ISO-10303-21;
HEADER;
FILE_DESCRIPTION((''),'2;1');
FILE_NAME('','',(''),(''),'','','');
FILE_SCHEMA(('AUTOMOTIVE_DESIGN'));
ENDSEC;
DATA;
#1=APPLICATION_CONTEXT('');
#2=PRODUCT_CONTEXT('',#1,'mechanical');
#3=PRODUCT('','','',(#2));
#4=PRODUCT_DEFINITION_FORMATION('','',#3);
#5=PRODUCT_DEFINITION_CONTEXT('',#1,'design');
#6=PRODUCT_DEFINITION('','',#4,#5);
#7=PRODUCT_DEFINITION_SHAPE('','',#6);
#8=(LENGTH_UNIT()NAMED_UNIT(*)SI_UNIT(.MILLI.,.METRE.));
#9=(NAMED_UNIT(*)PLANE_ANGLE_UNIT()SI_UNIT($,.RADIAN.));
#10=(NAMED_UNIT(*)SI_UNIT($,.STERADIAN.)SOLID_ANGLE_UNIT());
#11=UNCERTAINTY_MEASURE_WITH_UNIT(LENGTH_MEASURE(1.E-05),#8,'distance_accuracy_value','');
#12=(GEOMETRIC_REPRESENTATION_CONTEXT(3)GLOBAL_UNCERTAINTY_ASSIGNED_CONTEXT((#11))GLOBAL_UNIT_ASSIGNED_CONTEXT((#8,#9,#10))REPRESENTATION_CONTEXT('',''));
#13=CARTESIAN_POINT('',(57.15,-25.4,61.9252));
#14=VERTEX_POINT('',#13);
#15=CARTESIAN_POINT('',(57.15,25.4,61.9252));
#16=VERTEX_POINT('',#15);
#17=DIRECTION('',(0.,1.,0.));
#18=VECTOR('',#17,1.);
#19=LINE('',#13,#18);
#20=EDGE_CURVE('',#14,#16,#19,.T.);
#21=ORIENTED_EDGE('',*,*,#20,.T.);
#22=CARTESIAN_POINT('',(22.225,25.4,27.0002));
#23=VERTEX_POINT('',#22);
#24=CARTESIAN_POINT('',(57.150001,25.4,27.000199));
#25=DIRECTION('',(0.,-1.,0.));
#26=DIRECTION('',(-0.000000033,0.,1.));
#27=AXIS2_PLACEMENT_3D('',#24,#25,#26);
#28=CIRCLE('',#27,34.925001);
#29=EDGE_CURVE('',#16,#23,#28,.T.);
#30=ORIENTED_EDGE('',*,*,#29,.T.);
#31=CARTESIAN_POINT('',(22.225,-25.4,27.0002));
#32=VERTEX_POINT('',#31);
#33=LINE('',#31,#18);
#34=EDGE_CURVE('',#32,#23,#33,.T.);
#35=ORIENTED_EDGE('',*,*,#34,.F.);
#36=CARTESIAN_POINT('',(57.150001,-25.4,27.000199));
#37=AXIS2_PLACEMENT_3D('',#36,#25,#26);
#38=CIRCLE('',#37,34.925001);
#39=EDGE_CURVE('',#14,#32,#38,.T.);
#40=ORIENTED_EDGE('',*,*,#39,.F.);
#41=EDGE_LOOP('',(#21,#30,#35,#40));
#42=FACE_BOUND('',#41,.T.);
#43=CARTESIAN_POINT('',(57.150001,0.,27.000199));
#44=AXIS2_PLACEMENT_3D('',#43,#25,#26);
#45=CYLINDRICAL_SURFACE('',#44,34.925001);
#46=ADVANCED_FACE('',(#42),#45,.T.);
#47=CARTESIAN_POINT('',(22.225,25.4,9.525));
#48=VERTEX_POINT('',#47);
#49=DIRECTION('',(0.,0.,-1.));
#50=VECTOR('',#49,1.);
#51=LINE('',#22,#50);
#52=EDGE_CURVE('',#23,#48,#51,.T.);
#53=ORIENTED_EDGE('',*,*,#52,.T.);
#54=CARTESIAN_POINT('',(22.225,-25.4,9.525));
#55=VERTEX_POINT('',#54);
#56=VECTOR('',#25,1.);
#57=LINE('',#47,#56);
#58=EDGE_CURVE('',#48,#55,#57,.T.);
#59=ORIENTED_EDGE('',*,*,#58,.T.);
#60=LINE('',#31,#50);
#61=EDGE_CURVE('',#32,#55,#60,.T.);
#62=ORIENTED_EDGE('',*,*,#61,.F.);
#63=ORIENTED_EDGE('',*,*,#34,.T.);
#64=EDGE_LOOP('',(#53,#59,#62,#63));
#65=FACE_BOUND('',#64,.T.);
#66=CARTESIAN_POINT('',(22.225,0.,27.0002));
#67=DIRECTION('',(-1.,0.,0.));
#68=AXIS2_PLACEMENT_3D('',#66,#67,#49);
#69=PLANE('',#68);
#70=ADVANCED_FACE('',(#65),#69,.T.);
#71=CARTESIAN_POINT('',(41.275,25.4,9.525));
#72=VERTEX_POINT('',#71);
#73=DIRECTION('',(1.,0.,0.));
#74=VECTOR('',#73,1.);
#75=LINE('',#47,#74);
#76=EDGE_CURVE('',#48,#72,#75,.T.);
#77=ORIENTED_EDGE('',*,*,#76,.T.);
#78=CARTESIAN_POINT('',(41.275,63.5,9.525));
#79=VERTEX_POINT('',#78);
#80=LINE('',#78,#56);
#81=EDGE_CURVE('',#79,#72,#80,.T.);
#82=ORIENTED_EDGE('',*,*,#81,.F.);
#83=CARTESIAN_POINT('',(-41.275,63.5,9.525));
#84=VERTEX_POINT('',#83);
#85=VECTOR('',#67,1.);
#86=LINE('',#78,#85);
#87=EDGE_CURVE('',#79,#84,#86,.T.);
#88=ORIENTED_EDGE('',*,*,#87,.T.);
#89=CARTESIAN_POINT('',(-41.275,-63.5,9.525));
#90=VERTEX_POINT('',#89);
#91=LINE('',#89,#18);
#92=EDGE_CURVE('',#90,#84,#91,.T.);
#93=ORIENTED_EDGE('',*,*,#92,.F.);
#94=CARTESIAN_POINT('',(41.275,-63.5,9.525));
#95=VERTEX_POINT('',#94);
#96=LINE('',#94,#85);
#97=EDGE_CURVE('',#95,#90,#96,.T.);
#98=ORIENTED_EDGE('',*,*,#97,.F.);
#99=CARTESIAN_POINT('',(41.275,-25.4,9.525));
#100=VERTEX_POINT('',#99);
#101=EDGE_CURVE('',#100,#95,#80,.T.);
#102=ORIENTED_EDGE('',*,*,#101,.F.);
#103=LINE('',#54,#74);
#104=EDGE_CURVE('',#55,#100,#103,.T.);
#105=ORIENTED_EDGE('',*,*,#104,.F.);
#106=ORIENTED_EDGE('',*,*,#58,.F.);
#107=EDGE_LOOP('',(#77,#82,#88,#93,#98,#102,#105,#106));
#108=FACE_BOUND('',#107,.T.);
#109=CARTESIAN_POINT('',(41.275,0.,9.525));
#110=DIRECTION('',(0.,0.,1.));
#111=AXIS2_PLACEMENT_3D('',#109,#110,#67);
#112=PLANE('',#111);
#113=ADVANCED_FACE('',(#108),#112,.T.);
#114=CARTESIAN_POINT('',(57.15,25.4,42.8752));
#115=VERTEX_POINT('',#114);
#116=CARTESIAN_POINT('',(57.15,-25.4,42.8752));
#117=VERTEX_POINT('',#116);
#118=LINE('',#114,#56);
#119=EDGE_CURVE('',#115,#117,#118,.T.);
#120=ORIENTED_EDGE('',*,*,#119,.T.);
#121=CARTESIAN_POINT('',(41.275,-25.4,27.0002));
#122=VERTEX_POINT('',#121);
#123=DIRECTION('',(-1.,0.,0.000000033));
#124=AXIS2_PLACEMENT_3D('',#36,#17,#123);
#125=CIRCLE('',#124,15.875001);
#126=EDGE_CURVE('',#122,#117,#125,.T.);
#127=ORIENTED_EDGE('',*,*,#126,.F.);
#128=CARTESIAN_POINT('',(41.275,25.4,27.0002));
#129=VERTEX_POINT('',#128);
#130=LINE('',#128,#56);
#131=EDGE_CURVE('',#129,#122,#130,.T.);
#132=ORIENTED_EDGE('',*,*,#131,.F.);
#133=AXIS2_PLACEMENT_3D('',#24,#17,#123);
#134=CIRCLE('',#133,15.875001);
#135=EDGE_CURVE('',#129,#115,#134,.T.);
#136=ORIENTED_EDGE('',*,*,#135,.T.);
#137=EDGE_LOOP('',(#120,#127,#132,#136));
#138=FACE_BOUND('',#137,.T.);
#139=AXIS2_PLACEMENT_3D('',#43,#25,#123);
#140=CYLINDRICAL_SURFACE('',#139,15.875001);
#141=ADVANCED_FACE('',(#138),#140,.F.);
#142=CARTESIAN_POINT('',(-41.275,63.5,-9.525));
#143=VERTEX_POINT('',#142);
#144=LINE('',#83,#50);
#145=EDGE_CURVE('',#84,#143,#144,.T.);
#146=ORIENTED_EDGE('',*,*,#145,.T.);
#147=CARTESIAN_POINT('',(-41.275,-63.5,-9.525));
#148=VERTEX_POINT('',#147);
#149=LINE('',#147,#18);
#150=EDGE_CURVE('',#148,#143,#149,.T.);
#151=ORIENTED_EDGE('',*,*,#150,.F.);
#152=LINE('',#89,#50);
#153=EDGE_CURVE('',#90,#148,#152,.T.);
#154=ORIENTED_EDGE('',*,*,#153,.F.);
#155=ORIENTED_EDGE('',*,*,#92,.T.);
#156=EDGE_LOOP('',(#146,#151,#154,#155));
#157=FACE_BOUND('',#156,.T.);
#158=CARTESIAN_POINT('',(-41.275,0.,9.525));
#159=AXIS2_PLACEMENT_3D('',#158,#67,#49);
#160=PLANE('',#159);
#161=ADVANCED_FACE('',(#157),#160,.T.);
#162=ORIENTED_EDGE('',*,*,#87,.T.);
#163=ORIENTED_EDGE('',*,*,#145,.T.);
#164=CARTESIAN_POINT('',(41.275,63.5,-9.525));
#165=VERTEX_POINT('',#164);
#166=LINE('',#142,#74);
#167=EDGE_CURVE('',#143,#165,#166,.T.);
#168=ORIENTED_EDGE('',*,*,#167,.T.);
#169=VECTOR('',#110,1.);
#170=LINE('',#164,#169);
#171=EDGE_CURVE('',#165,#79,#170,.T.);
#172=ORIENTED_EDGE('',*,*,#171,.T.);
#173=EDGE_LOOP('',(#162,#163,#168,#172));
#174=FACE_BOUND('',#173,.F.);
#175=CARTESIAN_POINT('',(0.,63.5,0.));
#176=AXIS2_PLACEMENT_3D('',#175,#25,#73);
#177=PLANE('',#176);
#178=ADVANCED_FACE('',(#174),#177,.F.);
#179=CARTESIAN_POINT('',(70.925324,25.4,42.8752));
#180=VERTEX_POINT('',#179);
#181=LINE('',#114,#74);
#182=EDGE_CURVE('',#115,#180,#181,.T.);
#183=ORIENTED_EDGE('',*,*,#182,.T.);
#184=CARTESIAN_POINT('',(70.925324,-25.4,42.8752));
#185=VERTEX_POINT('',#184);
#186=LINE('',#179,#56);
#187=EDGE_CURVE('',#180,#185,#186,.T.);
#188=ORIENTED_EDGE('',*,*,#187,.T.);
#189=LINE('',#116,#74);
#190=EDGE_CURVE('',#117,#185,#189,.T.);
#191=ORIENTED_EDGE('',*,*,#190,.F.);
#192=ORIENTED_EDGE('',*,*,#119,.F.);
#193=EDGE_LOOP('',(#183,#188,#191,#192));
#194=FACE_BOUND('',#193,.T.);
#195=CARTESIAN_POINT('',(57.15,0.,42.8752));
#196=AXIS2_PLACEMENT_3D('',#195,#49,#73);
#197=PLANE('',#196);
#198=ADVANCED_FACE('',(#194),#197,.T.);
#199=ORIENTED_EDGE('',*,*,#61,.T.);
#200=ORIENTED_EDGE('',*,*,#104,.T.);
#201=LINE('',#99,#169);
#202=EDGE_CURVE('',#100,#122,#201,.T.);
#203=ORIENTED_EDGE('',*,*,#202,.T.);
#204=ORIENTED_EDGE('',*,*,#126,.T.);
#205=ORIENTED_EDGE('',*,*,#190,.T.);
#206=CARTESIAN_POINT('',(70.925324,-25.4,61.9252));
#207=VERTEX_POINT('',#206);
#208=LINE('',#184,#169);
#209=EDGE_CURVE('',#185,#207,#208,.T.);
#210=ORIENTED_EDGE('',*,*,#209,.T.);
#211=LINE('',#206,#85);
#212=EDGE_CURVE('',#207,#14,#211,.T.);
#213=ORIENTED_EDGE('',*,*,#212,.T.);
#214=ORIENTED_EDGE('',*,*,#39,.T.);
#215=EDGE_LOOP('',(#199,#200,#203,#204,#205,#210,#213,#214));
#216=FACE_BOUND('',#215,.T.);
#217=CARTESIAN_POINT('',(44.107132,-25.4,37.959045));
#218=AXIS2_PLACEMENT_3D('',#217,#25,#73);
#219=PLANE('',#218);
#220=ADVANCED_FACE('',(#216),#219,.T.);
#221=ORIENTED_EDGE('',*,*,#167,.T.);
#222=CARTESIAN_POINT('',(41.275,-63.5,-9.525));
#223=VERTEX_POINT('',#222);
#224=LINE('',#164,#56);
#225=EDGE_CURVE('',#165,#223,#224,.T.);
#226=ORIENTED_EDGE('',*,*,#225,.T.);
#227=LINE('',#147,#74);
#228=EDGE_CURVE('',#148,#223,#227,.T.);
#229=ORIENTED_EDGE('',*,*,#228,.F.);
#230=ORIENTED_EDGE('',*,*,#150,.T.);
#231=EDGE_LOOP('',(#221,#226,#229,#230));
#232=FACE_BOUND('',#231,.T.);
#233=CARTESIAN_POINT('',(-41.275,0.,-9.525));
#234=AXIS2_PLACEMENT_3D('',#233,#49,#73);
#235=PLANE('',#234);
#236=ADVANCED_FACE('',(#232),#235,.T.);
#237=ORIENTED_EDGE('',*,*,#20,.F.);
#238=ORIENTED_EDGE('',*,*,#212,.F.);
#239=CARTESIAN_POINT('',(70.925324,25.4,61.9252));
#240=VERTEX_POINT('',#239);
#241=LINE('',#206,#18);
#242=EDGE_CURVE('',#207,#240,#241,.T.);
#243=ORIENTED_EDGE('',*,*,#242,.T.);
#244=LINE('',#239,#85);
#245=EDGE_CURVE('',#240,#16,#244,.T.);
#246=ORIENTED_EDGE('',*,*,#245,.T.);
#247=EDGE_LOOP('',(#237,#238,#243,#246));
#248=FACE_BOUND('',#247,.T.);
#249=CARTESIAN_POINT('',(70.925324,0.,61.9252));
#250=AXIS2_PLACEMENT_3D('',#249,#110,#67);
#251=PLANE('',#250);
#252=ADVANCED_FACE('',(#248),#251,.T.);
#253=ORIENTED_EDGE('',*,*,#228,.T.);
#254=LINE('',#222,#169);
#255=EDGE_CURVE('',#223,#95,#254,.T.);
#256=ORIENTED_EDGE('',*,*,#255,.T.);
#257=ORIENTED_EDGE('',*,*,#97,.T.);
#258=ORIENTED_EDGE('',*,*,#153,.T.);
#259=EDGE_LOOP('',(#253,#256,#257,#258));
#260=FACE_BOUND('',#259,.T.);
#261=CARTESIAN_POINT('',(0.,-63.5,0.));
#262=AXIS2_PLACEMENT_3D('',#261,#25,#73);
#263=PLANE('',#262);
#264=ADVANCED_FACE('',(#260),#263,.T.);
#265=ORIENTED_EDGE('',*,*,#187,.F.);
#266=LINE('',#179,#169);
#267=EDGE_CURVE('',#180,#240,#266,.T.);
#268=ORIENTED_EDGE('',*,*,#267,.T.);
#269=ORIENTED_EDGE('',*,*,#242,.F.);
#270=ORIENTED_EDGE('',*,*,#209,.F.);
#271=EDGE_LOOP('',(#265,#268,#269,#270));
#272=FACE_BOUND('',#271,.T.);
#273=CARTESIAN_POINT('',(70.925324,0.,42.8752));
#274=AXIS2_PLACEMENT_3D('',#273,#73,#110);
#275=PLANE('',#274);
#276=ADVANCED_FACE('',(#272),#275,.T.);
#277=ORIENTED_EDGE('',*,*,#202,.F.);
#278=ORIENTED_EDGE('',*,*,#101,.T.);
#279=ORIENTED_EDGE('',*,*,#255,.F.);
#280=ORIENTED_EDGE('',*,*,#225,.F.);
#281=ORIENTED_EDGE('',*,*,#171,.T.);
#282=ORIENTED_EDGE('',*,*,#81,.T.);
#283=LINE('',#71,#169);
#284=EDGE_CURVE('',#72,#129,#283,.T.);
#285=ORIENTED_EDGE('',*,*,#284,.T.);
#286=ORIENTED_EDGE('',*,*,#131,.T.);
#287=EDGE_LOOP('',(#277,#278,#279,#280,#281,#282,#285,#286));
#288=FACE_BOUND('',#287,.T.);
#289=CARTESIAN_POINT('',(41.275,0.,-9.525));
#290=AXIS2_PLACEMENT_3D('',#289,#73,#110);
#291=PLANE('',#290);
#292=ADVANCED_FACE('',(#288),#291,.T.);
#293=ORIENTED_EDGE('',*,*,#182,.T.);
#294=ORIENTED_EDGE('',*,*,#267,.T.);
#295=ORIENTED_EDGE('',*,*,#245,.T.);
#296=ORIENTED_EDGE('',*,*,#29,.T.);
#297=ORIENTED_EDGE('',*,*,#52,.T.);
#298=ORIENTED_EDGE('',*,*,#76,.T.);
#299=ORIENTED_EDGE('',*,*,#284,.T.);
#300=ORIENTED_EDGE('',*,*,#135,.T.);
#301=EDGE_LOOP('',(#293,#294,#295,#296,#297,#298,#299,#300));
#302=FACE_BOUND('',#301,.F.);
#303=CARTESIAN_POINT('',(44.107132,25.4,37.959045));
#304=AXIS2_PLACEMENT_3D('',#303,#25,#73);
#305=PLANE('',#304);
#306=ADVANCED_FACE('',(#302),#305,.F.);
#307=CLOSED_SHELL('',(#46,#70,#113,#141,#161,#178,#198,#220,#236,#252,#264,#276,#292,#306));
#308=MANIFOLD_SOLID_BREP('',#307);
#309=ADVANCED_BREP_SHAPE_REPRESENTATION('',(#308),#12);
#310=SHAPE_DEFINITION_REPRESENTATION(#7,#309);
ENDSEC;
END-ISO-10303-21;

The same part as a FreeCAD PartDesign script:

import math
import FreeCAD as App
import Part
import Sketcher
from FreeCAD import Vector
Q = App.Units.Quantity


def add_polygon(sketch, points):
    """Adds a closed chain of lines whose ends are joined by coincident constraints."""
    first, n = sketch.GeometryCount, len(points)
    for a, b in zip(points, points[1:] + points[:1]):
        sketch.addGeometry(Part.LineSegment(App.Vector(*a, 0), App.Vector(*b, 0)), False)
    for i in range(n):
        sketch.addConstraint(Sketcher.Constraint("Coincident", first + i, 2, first + (i + 1) % n, 1))

doc = App.newDocument("Part")
body = doc.addObject("PartDesign::Body", "Body")

sketch1 = body.newObject("Sketcher::SketchObject", "Sketch")
sketch1.AttachmentSupport = (doc.getObject("XZ_Plane"), [""])
sketch1.MapMode = "FlatFace"
add_polygon(sketch1, [(-41.275, -9.525), (41.275, -9.525), (41.275, 9.525), (-41.275, 9.525)])
sketch1.addConstraint(Sketcher.Constraint("Horizontal", 0))
sketch1.addConstraint(Sketcher.Constraint("Vertical", 1))
sketch1.addConstraint(Sketcher.Constraint("Horizontal", 2))
sketch1.addConstraint(Sketcher.Constraint("Vertical", 3))
sketch1.addConstraint(Sketcher.Constraint("Symmetric", 0, 2, 2, 2, -1, 1))
sketch1.addConstraint(Sketcher.Constraint("DistanceX", 0, 1, 0, 2, Q("3.25 in")))
sketch1.addConstraint(Sketcher.Constraint("DistanceY", 1, 1, 1, 2, Q("0.75 in")))
pad1 = body.newObject("PartDesign::Pad", "Pad")
pad1.Profile = sketch1
pad1.Length = Q("5 in")
pad1.Midplane = True

sketch2 = body.newObject("Sketcher::SketchObject", "Sketch001")
sketch2.AttachmentSupport = (doc.getObject("XZ_Plane"), [""])
sketch2.MapMode = "FlatFace"
sketch2.addGeometry(Part.LineSegment(Vector(22.225, 27.0002, 0), Vector(22.225, 9.525, 0)), False)
sketch2.addGeometry(Part.LineSegment(Vector(22.225, 9.525, 0), Vector(41.275, 9.525, 0)), False)
sketch2.addGeometry(Part.LineSegment(Vector(41.275, 9.525, 0), Vector(41.275, 27.0002, 0)), False)
sketch2.addGeometry(Part.ArcOfCircle(Part.Circle(Vector(57.150001, 27.000199, 0), Vector(0, 0, 1), 15.875001), math.radians(90.000002), math.radians(179.999998)), False)
sketch2.addGeometry(Part.LineSegment(Vector(57.15, 42.8752, 0), Vector(70.925324, 42.8752, 0)), False)
sketch2.addGeometry(Part.LineSegment(Vector(70.925324, 42.8752, 0), Vector(70.925324, 61.9252, 0)), False)
sketch2.addGeometry(Part.LineSegment(Vector(70.925324, 61.9252, 0), Vector(57.15, 61.9252, 0)), False)
sketch2.addGeometry(Part.ArcOfCircle(Part.Circle(Vector(57.150001, 27.000199, 0), Vector(0, 0, 1), 34.925001), math.radians(90.000002), math.radians(179.999998)), False)
sketch2.addConstraint(Sketcher.Constraint("Coincident", 0, 2, 1, 1))
sketch2.addConstraint(Sketcher.Constraint("Coincident", 1, 2, 2, 1))
sketch2.addConstraint(Sketcher.Constraint("Tangent", 2, 2, 3, 2))
sketch2.addConstraint(Sketcher.Constraint("Tangent", 3, 1, 4, 1))
sketch2.addConstraint(Sketcher.Constraint("Coincident", 4, 2, 5, 1))
sketch2.addConstraint(Sketcher.Constraint("Coincident", 5, 2, 6, 1))
sketch2.addConstraint(Sketcher.Constraint("Tangent", 6, 2, 7, 1))
sketch2.addConstraint(Sketcher.Constraint("Tangent", 7, 2, 0, 1))
sketch2.addConstraint(Sketcher.Constraint("Vertical", 0))
sketch2.addConstraint(Sketcher.Constraint("Horizontal", 1))
sketch2.addConstraint(Sketcher.Constraint("Vertical", 2))
sketch2.addConstraint(Sketcher.Constraint("Horizontal", 4))
sketch2.addConstraint(Sketcher.Constraint("Vertical", 5))
sketch2.addConstraint(Sketcher.Constraint("Horizontal", 6))
sketch2.addConstraint(Sketcher.Constraint("Coincident", 7, 3, 3, 3))
sketch2.addConstraint(Sketcher.Constraint("Radius", 3, Q("0.625 in")))
sketch2.addConstraint(Sketcher.Constraint("Radius", 7, Q("1.375 in")))
sketch2.addConstraint(Sketcher.Constraint("DistanceY", 0, 2, 0, 1, Q("0.688 in")))
sketch2.addConstraint(Sketcher.Constraint("DistanceX", -1, 1, 3, 3, Q("2.25 in")))
sketch2.addConstraint(Sketcher.Constraint("DistanceY", -1, 1, 3, 3, Q("1.063 in")))
sketch2.addConstraint(Sketcher.Constraint("DistanceX", 4, 1, 4, 2, 13.775324))
pad2 = body.newObject("PartDesign::Pad", "Pad001")
pad2.Profile = sketch2
pad2.Length = Q("2 in")
pad2.Midplane = True

doc.recompute()
